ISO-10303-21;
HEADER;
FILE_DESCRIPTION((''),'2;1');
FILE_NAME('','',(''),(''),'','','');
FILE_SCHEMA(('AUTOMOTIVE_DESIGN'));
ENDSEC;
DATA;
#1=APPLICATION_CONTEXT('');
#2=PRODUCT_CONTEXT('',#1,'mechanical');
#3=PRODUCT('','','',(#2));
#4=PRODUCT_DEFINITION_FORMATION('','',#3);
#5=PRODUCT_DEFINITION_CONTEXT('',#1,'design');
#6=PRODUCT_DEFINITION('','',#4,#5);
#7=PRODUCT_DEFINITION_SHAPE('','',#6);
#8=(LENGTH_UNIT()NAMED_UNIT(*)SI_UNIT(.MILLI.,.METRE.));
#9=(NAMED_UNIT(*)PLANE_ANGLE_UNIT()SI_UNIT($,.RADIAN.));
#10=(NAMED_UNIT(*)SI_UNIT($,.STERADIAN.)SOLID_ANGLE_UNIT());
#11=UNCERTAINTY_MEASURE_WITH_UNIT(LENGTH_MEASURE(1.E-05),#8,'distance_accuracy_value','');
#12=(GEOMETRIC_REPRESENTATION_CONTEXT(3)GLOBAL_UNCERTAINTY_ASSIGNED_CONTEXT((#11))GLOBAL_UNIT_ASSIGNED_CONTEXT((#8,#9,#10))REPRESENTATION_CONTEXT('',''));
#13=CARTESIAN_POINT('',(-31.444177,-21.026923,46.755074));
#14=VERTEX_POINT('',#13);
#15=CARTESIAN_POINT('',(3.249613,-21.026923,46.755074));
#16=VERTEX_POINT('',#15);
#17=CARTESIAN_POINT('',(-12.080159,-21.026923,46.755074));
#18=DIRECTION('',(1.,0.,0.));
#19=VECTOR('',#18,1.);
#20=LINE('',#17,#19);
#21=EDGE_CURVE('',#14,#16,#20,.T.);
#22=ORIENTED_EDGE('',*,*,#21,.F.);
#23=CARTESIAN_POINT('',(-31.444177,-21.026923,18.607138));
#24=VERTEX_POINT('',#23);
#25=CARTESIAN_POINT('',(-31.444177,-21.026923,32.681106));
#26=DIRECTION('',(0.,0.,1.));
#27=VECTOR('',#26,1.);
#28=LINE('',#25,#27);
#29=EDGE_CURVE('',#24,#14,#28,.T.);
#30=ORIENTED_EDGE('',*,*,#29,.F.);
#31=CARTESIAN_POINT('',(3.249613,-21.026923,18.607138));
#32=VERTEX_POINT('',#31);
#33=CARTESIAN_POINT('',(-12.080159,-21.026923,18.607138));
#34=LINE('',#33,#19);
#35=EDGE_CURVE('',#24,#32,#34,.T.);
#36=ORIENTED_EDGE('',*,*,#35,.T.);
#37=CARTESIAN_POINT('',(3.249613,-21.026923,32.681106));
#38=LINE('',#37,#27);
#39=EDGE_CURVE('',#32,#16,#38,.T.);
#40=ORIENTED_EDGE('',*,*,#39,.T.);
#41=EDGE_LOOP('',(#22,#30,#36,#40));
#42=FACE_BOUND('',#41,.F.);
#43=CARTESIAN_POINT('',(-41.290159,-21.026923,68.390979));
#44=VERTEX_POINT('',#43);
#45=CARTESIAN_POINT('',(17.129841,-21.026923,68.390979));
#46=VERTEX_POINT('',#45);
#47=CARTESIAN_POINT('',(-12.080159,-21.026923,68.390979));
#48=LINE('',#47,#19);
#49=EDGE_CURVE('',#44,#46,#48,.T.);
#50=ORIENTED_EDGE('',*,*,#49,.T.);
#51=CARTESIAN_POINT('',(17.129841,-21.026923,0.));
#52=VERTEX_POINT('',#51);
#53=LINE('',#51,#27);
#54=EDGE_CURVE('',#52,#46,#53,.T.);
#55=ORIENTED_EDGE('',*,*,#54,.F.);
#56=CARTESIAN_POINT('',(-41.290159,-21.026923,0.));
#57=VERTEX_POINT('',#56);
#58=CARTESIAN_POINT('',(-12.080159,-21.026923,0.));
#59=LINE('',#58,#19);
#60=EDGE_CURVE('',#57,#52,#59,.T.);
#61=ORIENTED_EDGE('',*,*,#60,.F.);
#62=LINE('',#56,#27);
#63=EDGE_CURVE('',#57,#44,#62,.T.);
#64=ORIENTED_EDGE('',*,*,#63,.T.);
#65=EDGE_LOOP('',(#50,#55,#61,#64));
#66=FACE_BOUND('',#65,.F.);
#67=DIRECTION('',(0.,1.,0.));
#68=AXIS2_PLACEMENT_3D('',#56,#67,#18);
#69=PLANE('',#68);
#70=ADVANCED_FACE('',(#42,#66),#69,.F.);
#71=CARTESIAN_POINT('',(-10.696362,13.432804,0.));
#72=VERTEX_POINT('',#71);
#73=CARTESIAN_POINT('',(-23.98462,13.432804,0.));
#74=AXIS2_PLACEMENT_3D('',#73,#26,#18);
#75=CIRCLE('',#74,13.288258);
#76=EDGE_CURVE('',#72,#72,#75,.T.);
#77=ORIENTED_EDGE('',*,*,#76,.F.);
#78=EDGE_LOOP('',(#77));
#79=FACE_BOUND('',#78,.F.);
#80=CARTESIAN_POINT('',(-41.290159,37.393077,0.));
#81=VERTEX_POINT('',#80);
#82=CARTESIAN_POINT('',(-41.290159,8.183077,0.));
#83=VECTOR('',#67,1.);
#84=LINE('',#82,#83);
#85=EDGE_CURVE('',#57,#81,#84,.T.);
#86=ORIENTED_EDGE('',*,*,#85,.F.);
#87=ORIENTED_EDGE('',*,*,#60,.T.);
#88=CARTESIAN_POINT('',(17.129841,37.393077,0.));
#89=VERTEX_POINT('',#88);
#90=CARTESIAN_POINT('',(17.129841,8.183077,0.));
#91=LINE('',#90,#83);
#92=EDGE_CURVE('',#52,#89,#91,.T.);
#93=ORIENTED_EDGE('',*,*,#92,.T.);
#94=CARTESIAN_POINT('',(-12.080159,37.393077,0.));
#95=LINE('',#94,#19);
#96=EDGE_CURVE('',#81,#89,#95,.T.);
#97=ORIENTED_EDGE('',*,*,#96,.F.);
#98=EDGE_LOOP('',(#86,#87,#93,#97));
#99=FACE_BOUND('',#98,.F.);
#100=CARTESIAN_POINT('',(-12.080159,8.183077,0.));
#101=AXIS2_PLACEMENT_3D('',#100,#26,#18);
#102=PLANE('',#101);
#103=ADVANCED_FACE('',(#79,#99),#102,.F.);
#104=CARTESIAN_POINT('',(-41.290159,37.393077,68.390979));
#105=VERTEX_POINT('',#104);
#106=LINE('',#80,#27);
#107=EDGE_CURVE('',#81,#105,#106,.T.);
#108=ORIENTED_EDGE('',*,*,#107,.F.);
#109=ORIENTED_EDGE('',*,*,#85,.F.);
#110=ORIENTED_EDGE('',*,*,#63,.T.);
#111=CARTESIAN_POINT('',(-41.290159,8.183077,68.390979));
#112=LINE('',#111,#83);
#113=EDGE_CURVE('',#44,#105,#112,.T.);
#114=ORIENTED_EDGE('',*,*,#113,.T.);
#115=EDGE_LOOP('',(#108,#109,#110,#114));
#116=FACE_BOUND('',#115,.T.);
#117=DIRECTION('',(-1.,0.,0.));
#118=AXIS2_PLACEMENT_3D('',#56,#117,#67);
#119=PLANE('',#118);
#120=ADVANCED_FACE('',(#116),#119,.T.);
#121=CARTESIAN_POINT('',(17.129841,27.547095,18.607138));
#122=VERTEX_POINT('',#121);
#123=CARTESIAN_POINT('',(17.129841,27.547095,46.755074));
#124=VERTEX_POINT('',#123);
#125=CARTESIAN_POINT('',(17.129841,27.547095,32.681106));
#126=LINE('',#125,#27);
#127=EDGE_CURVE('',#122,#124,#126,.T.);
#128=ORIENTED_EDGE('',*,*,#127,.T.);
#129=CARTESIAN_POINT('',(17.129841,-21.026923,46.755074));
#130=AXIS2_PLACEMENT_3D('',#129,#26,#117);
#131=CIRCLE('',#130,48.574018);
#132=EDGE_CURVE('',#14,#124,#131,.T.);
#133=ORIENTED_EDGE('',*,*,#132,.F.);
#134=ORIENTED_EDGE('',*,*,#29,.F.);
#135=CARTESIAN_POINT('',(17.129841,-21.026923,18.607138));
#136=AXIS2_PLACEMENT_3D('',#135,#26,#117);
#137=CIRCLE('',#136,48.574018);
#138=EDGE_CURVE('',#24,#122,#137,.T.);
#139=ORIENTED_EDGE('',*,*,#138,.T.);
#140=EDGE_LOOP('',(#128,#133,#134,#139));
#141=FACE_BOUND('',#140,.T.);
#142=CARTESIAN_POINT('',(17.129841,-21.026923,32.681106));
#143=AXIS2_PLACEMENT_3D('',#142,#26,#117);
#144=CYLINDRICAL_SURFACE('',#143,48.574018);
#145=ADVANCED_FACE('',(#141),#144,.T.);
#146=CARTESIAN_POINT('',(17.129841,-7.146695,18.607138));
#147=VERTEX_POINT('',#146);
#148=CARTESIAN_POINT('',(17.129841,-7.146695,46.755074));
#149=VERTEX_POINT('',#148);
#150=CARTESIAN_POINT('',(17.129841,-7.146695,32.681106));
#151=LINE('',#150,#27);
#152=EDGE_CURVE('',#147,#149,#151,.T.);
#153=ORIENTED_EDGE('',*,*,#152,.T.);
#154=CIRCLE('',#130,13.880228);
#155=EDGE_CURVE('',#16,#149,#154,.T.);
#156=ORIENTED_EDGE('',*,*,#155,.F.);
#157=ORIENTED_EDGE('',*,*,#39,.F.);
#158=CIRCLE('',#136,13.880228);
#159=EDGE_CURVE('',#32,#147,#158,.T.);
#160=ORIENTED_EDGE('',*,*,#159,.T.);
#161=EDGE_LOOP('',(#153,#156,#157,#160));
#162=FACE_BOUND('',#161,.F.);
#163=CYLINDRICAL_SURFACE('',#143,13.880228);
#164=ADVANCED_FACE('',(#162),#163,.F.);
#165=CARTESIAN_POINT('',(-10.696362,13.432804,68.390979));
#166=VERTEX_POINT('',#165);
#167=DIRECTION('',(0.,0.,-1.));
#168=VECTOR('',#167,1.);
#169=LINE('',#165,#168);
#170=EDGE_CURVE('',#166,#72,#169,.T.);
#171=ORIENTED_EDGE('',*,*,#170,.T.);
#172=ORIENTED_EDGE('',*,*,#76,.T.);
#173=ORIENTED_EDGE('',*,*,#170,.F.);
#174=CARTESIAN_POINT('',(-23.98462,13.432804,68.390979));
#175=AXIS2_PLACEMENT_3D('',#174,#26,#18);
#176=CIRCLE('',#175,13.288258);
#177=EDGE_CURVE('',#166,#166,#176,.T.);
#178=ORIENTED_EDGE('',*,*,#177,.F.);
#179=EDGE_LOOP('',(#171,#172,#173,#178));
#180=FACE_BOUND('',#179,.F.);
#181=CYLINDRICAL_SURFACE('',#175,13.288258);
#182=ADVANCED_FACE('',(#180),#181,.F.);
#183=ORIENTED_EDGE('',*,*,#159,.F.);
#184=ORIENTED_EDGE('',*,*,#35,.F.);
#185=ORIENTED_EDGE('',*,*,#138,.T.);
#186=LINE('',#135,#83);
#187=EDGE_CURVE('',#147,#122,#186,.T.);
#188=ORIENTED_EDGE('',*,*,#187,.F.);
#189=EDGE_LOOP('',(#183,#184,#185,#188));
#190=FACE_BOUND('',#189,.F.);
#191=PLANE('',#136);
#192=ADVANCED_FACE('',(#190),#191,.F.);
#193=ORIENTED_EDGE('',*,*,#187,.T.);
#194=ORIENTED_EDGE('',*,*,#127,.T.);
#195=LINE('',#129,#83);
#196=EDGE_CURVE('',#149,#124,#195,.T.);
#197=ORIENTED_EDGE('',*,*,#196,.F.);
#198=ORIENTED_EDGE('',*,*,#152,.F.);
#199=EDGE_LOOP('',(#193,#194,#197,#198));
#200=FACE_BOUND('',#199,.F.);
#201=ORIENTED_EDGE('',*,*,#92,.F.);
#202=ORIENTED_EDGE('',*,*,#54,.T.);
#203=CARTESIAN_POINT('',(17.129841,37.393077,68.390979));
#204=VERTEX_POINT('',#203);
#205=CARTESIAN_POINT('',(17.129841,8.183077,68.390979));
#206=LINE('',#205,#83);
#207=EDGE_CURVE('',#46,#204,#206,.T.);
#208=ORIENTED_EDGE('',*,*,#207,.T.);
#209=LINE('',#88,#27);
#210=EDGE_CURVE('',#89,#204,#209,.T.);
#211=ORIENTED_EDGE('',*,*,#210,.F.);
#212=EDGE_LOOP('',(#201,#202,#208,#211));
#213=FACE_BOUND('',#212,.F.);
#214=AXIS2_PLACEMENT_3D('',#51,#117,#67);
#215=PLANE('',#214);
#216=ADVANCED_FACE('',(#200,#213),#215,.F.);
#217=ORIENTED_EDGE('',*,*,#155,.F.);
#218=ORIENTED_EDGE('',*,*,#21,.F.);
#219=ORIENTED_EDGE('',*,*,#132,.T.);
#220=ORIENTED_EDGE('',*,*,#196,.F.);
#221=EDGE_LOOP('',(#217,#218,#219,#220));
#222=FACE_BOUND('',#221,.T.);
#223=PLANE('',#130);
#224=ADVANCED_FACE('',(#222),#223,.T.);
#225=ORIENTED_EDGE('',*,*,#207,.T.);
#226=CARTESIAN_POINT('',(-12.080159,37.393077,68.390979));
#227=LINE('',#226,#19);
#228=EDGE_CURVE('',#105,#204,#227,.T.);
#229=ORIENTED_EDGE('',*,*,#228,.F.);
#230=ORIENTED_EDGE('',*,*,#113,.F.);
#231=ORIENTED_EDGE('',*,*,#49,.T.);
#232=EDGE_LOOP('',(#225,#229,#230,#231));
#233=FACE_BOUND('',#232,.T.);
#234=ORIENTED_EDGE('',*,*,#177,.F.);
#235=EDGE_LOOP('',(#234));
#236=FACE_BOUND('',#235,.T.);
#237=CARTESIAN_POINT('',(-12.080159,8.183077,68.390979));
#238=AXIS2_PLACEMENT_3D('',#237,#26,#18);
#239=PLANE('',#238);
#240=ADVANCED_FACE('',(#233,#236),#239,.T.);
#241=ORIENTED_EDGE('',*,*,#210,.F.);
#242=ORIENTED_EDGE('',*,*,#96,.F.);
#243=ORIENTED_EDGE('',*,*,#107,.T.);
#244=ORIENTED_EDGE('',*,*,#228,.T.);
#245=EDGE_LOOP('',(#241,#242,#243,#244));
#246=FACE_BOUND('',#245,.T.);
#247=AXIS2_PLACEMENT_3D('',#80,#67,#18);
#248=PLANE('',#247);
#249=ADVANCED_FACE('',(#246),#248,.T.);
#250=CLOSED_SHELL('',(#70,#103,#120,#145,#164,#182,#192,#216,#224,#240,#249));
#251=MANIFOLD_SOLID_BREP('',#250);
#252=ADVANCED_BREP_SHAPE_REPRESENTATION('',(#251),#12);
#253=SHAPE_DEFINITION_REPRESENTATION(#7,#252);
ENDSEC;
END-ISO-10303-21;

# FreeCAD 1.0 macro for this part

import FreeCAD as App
import Part
import Sketcher
Q = App.Units.Quantity


def add_polygon(sketch, points):
    """Adds a closed chain of lines whose ends are joined by coincident constraints."""
    first, n = sketch.GeometryCount, len(points)
    for a, b in zip(points, points[1:] + points[:1]):
        sketch.addGeometry(Part.LineSegment(App.Vector(*a, 0), App.Vector(*b, 0)), False)
    for i in range(n):
        sketch.addConstraint(Sketcher.Constraint("Coincident", first + i, 2, first + (i + 1) % n, 1))

doc = App.newDocument("Part")
body = doc.addObject("PartDesign::Body", "Body")

# Sketch on XY plane
sketch1 = body.newObject("Sketcher::SketchObject", "Sketch")
sketch1.AttachmentSupport = (doc.getObject("XY_Plane"), [""])
sketch1.MapMode = "FlatFace"
add_polygon(sketch1, [(-41, 37), (-41, -21), (17, -21), (17, 37)])  # lines 0-3
sketch1.addConstraint(Sketcher.Constraint("Vertical", 0))
sketch1.addConstraint(Sketcher.Constraint("Horizontal", 1))
sketch1.addConstraint(Sketcher.Constraint("Vertical", 2))
sketch1.addConstraint(Sketcher.Constraint("Horizontal", 3))
sketch1.addConstraint(Sketcher.Constraint("Equal", 3, 0))
sketch1.addConstraint(Sketcher.Constraint("DistanceX", 1, 1, 1, 2, Q("2.3 in")))
sketch1.addConstraint(Sketcher.Constraint("DistanceX", 0, 2, -1, 1, 41.290159))
sketch1.addConstraint(Sketcher.Constraint("DistanceY", 0, 2, -1, 1, 21.026923))
pad1 = body.newObject("PartDesign::Pad", "Pad")
pad1.Profile = sketch1
pad1.Length = 68.390979

# Sketch on XZ plane
sketch2 = body.newObject("Sketcher::SketchObject", "Sketch001")
sketch2.AttachmentSupport = (doc.getObject("XZ_Plane"), [""])
sketch2.MapMode = "FlatFace"
sketch2.AttachmentOffset = App.Placement(App.Vector(0, 0, 21.026923), App.Rotation())
add_polygon(sketch2, [(-31, 47), (-31, 19), (3, 19), (3, 47)])  # lines 0-3
sketch2.addGeometry(Part.LineSegment(App.Vector(17, 19, 0), App.Vector(17, 47, 0)), True)  # axis
sketch2.addConstraint(Sketcher.Constraint("Vertical", 0))
sketch2.addConstraint(Sketcher.Constraint("Horizontal", 1))
sketch2.addConstraint(Sketcher.Constraint("Vertical", 2))
sketch2.addConstraint(Sketcher.Constraint("Horizontal", 3))
sketch2.addConstraint(Sketcher.Constraint("Vertical", 4))
sketch2.addConstraint(Sketcher.Constraint("Horizontal", 1, 2, 4, 1))
sketch2.addConstraint(Sketcher.Constraint("Horizontal", 3, 2, 4, 2))
sketch2.addConstraint(Sketcher.Constraint("DistanceX", 1, 1, 1, 2, 34.69379))
sketch2.addConstraint(Sketcher.Constraint("DistanceY", 0, 2, 0, 1, 28.147937))
sketch2.addConstraint(Sketcher.Constraint("DistanceX", -1, 1, 4, 1, 17.129841))
sketch2.addConstraint(Sketcher.Constraint("DistanceX", 0, 2, -1, 1, 31.444177))
sketch2.addConstraint(Sketcher.Constraint("DistanceY", -1, 1, 0, 2, 18.607138))
revolution = body.newObject("PartDesign::Revolution", "Revolution")
revolution.Profile = sketch2
revolution.ReferenceAxis = (sketch2, ["Axis0"])
revolution.Angle = 360

# Sketch on XY plane
sketch3 = body.newObject("Sketcher::SketchObject", "Sketch002")
sketch3.AttachmentSupport = (doc.getObject("XY_Plane"), [""])
sketch3.MapMode = "FlatFace"
sketch3.AttachmentOffset = App.Placement(App.Vector(0, 0, 68.390979), App.Rotation())
sketch3.addGeometry(Part.Circle(App.Vector(-24, 13, 0), App.Vector(0, 0, 1), 13), False)
sketch3.addConstraint(Sketcher.Constraint("Diameter", 0, 26.576516))
sketch3.addConstraint(Sketcher.Constraint("DistanceX", 0, 3, -1, 1, 23.98462))
sketch3.addConstraint(Sketcher.Constraint("DistanceY", -1, 1, 0, 3, 13.432804))
pocket1 = body.newObject("PartDesign::Pocket", "Pocket")
pocket1.Profile = sketch3
pocket1.Length = Q("5.55 in")

doc.recompute()
